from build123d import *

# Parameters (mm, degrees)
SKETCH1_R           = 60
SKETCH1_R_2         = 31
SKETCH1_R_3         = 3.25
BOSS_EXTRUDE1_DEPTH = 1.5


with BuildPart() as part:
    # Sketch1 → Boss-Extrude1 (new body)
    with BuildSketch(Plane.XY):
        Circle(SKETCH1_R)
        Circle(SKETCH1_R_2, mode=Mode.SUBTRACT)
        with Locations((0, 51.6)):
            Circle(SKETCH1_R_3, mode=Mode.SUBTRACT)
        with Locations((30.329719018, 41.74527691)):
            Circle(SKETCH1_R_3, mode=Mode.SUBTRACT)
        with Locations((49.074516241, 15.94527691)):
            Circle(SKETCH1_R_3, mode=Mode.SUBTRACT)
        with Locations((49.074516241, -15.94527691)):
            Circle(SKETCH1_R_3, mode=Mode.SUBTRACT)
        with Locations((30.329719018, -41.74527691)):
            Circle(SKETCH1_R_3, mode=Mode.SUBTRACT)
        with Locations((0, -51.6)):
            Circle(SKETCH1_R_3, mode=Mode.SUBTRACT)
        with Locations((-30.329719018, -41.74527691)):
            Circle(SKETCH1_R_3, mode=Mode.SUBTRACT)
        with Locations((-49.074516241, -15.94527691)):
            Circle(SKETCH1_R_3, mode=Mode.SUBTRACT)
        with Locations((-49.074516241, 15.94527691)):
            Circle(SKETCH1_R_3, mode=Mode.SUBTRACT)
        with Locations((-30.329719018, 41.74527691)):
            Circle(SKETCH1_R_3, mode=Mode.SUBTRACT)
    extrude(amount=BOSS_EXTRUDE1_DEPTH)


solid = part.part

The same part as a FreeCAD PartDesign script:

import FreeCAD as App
import Part
import Sketcher

V = App.Vector

doc = App.newDocument("Part")
body = doc.addObject("PartDesign::Body", "Body")

sketch1 = doc.addObject("Sketcher::SketchObject", "Sketch")
body.addObject(sketch1)
sketch1.AttachmentSupport = (doc.XY_Plane, [""])
sketch1.MapMode = "FlatFace"
sketch1.addGeometry([
    Part.Circle(V(0, 0, 0), V(0, 0, 1), 60),
    Part.Circle(V(-30.3, -41.7, 0), V(0, 0, 1), 3.2),
    Part.Circle(V(-49.1, -15.9, 0), V(0, 0, 1), 3.2),
    Part.Circle(V(0, -51.6, 0), V(0, 0, 1), 3.2),
    Part.Circle(V(30.3, -41.7, 0), V(0, 0, 1), 3.2),
    Part.Circle(V(49.1, -15.9, 0), V(0, 0, 1), 3.2),
    Part.Circle(V(-49.1, 15.9, 0), V(0, 0, 1), 3.2),
    Part.Circle(V(-30.3, 41.7, 0), V(0, 0, 1), 3.2),
    Part.Circle(V(0, 0, 0), V(0, 0, 1), 31),
    Part.Circle(V(49.1, 15.9, 0), V(0, 0, 1), 3.2),
    Part.Circle(V(0, 51.6, 0), V(0, 0, 1), 3.2),
    Part.Circle(V(30.3, 41.7, 0), V(0, 0, 1), 3.2),
], False)
sketch1.addConstraint([
    Sketcher.Constraint("Coincident", 0, 3, -1, 1),
    Sketcher.Constraint("Coincident", 8, 3, -1, 1),
    Sketcher.Constraint("Equal", 1, 2),
    Sketcher.Constraint("Equal", 2, 3),
    Sketcher.Constraint("Equal", 3, 4),
    Sketcher.Constraint("Equal", 4, 5),
    Sketcher.Constraint("Equal", 5, 6),
    Sketcher.Constraint("Equal", 6, 7),
    Sketcher.Constraint("Equal", 7, 9),
    Sketcher.Constraint("Equal", 9, 10),
    Sketcher.Constraint("Equal", 10, 11),
    Sketcher.Constraint("Symmetric", 5, 3, 6, 3, -1, 1),
    Sketcher.Constraint("Symmetric", 4, 3, 7, 3, -1, 1),
    Sketcher.Constraint("Symmetric", 2, 3, 9, 3, -1, 1),
    Sketcher.Constraint("Symmetric", 3, 3, 10, 3, -1, 1),
    Sketcher.Constraint("Symmetric", 1, 3, 11, 3, -1, 1),
    Sketcher.Constraint("Symmetric", 1, 3, 4, 3, -2),
    Sketcher.Constraint("Symmetric", 2, 3, 5, 3, -2),
    Sketcher.Constraint("PointOnObject", 3, 3, -2),
    Sketcher.Constraint("Diameter", 0, 120.0),
    Sketcher.Constraint("Diameter", 8, 62.0),
    Sketcher.Constraint("Diameter", 1, 6.5),
    Sketcher.Constraint("DistanceY", 3, 3, -1, 1, 51.6),
    Sketcher.Constraint("DistanceY", 1, 3, 2, 3, 25.8),
    Sketcher.Constraint("DistanceX", 1, 3, -1, 1, 30.329719),
    Sketcher.Constraint("DistanceY", 1, 3, -1, 1, 41.745277),
    Sketcher.Constraint("DistanceX", 2, 3, -1, 1, 49.074516),
])
pad1 = doc.addObject("PartDesign::Pad", "Pad")
body.addObject(pad1)
pad1.Profile = sketch1
pad1.Length = 1.5

doc.recompute()
